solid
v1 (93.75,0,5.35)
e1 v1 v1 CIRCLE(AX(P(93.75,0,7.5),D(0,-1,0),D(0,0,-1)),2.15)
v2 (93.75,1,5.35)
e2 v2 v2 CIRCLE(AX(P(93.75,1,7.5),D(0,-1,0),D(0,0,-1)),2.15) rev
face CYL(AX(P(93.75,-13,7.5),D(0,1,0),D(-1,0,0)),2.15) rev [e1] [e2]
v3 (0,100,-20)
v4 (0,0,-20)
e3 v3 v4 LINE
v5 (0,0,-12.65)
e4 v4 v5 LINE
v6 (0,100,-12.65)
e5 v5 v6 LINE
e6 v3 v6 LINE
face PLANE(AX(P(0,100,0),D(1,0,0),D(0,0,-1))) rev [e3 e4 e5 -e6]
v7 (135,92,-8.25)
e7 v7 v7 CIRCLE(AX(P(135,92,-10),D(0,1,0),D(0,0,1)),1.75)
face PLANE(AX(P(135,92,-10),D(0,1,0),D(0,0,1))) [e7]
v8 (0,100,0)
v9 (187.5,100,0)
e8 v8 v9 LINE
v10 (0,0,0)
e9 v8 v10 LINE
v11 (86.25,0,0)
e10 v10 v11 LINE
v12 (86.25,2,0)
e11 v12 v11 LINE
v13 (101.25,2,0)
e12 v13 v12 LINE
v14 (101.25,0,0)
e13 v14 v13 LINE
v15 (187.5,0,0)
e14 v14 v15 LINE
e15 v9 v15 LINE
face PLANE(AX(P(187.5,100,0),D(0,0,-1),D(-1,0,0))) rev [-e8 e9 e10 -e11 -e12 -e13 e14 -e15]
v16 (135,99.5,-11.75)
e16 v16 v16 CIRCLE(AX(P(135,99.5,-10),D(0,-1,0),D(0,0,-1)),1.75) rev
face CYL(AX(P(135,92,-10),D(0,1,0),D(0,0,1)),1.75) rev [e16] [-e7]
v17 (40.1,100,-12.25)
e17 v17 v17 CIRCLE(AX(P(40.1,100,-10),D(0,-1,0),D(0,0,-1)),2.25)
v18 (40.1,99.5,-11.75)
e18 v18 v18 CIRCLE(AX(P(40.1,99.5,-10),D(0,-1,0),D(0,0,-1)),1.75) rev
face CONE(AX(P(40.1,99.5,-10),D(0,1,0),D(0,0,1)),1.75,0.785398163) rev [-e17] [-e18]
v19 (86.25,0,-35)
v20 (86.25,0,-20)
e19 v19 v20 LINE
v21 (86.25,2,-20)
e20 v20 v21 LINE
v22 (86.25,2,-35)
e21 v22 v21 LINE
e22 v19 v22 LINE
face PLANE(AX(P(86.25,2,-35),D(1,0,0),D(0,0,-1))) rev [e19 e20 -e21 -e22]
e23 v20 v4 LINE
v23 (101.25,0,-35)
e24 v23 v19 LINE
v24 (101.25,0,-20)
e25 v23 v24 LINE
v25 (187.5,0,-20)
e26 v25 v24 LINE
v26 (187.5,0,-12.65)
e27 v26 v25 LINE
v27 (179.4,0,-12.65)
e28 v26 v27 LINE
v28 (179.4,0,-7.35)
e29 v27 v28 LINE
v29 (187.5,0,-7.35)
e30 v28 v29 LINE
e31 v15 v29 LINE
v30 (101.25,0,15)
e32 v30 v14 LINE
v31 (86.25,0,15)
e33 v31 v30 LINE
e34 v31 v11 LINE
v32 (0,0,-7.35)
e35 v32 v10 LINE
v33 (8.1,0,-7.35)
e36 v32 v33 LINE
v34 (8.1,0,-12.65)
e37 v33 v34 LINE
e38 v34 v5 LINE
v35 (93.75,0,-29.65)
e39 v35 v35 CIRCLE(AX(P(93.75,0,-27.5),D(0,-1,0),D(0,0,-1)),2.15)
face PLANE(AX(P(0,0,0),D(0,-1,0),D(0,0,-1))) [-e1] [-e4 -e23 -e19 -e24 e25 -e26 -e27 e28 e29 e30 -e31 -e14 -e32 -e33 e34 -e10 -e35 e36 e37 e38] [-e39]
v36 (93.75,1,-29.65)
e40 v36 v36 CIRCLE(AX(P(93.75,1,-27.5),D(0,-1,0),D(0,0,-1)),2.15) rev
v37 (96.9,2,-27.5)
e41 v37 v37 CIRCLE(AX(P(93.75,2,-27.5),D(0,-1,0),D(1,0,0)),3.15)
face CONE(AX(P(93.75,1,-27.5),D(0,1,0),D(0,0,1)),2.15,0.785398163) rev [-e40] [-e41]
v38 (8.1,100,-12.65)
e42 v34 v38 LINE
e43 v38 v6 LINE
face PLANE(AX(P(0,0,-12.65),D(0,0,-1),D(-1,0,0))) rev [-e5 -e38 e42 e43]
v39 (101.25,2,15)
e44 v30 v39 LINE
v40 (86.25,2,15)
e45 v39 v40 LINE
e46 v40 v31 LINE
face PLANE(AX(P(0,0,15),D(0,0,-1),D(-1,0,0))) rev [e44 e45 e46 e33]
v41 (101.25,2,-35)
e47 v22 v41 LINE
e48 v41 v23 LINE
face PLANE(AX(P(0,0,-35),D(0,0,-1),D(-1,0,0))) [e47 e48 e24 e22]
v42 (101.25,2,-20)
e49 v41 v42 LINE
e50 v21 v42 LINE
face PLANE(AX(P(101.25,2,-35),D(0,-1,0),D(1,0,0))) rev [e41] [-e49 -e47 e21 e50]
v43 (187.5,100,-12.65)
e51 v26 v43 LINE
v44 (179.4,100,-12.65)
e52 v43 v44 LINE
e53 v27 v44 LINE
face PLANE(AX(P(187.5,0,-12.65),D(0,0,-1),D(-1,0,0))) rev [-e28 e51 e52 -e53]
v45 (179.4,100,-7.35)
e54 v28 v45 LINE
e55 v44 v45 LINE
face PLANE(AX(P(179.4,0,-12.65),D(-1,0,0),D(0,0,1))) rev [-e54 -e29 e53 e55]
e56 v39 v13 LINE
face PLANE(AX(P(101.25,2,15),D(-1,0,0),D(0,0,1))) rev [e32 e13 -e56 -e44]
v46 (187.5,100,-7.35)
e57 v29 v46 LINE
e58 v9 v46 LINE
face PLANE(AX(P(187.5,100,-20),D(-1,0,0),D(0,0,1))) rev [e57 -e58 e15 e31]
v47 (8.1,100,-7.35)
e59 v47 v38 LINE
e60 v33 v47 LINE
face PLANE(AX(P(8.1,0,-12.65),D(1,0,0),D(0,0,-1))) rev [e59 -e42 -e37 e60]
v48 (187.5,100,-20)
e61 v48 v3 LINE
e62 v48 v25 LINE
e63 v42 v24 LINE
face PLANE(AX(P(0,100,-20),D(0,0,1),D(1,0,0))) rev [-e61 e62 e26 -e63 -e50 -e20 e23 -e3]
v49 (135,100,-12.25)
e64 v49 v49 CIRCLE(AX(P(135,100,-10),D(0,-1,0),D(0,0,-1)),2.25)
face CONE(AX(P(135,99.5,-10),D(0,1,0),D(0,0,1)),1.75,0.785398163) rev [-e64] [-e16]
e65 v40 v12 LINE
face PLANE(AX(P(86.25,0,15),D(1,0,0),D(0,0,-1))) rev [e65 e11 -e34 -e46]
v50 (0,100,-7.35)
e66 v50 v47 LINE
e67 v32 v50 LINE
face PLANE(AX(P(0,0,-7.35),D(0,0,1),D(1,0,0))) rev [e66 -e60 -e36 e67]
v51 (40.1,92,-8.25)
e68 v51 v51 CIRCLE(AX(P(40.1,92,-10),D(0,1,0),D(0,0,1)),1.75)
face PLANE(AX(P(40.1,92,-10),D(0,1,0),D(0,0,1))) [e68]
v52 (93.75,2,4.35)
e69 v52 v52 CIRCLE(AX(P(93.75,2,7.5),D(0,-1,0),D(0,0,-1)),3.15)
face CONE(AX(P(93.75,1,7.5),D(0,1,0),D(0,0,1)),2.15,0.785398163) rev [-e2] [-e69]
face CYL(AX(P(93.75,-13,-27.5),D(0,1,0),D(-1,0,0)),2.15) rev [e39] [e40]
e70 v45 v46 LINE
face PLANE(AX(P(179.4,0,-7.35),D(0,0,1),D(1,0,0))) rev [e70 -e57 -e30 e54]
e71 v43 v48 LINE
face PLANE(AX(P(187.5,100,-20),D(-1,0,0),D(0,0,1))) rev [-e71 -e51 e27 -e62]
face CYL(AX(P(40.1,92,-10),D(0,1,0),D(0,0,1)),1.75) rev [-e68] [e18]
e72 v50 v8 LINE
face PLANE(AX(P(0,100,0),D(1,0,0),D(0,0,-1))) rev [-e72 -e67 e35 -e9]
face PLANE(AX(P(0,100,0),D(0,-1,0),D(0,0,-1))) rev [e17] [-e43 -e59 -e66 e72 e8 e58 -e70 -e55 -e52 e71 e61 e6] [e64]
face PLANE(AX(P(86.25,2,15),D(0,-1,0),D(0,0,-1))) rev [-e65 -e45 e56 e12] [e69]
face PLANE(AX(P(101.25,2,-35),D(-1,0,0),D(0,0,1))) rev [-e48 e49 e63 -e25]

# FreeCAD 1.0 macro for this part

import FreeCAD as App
import Part
import Sketcher

V = App.Vector
Q = App.Units.Quantity


def edges_at(feature, points):
    """Names of the edges that pass closest to the given points."""
    edges = feature.Shape.Edges
    near = lambda p: min(range(len(edges)), key=lambda i: edges[i].distToShape(Part.Vertex(*p))[0])
    return sorted({f"Edge{near(p) + 1}" for p in points})


def add_polygon(sketch, points):
    """Adds a closed chain of lines whose ends are joined by coincident constraints."""
    first, n = sketch.GeometryCount, len(points)
    for a, b in zip(points, points[1:] + points[:1]):
        sketch.addGeometry(Part.LineSegment(App.Vector(*a, 0), App.Vector(*b, 0)), False)
    for i in range(n):
        sketch.addConstraint(Sketcher.Constraint("Coincident", first + i, 2, first + (i + 1) % n, 1))

doc = App.newDocument("Part")
body = doc.addObject("PartDesign::Body", "Body")

# Sketch on XZ plane
sketch1 = body.newObject("Sketcher::SketchObject", "Sketch")
sketch1.AttachmentSupport = (doc.getObject("XZ_Plane"), [""])
sketch1.MapMode = "FlatFace"
add_polygon(sketch1, [(0, -20), (0, 0), (187.5, 0), (187.5, -20)])  # lines 0-3
sketch1.addConstraint([
    Sketcher.Constraint("Vertical", 0),
    Sketcher.Constraint("Horizontal", 1),
    Sketcher.Constraint("Vertical", 2),
    Sketcher.Constraint("Horizontal", 3),
    Sketcher.Constraint("Coincident", 0, 2, -1, 1),
    Sketcher.Constraint("DistanceY", 0, 1, 0, 2, Q("20 mm")),
    Sketcher.Constraint("DistanceX", 1, 1, 1, 2, Q("187.5 mm")),
])
pad1 = body.newObject("PartDesign::Pad", "Pad")
pad1.Profile = sketch1
pad1.Length = 100
pad1.Reversed = True

# Sketch on XZ plane
sketch2 = body.newObject("Sketcher::SketchObject", "Sketch001")
sketch2.AttachmentSupport = (doc.getObject("XZ_Plane"), [""])
sketch2.MapMode = "FlatFace"
sketch2.AttachmentOffset = App.Placement(V(0, 0, -100), App.Rotation())
add_polygon(sketch2, [(0, -12.65), (0, -7.35), (8.1, -7.35), (8.1, -12.65)])  # lines 0-3
add_polygon(sketch2, [(179.4, -12.65), (179.4, -7.35), (187.5, -7.35), (187.5, -12.65)])  # lines 4-7
sketch2.addConstraint([
    Sketcher.Constraint("Vertical", 0),
    Sketcher.Constraint("Horizontal", 1),
    Sketcher.Constraint("Vertical", 2),
    Sketcher.Constraint("Horizontal", 3),
    Sketcher.Constraint("Vertical", 4),
    Sketcher.Constraint("Horizontal", 5),
    Sketcher.Constraint("Vertical", 6),
    Sketcher.Constraint("Horizontal", 7),
    Sketcher.Constraint("PointOnObject", 0, 2, -2),
    Sketcher.Constraint("Horizontal", 1, 2, 4, 2),
    Sketcher.Constraint("Horizontal", 3, 2, 6, 2),
    Sketcher.Constraint("Equal", 3, 5),
    Sketcher.Constraint("DistanceX", 1, 1, 1, 2, Q("8.1 mm")),
    Sketcher.Constraint("DistanceY", 0, 1, 0, 2, Q("5.3 mm")),
    Sketcher.Constraint("DistanceX", -1, 1, 4, 2, Q("179.4 mm")),
    Sketcher.Constraint("DistanceY", 0, 2, -1, 1, Q("7.35 mm")),
])
pocket1 = body.newObject("PartDesign::Pocket", "Pocket")
pocket1.Profile = sketch2
pocket1.Length = 100
pocket1.Reversed = True

# Sketch on XZ plane
sketch3 = body.newObject("Sketcher::SketchObject", "Sketch002")
sketch3.AttachmentSupport = (doc.getObject("XZ_Plane"), [""])
sketch3.MapMode = "FlatFace"
sketch3.AttachmentOffset = App.Placement(V(0, 0, -100), App.Rotation())
sketch3.addGeometry([
    Part.Circle(V(40.1, -10, 0), V(0, 0, 1), 1.75),
    Part.Circle(V(135, -10, 0), V(0, 0, 1), 1.75),
], False)
sketch3.addConstraint([
    Sketcher.Constraint("Equal", 0, 1),
    Sketcher.Constraint("Horizontal", 0, 3, 1, 3),
    Sketcher.Constraint("Diameter", 0, Q("3.5 mm")),
    Sketcher.Constraint("DistanceY", 0, 3, -1, 1, Q("10 mm")),
    Sketcher.Constraint("DistanceX", -1, 1, 1, 3, Q("135 mm")),
    Sketcher.Constraint("DistanceX", -1, 1, 0, 3, Q("40.1 mm")),
])
pocket2 = body.newObject("PartDesign::Pocket", "Pocket001")
pocket2.Profile = sketch3
pocket2.Length = 8
pocket2.Reversed = True
doc.recompute()

chamfer = body.newObject("PartDesign::Chamfer", "Chamfer")
chamfer.Base = (pocket2, edges_at(pocket2, [(40.1, 100, -11.75)]))
chamfer.Size = 0.5
doc.recompute()

chamfer2 = body.newObject("PartDesign::Chamfer", "Chamfer001")
chamfer2.Base = (chamfer, edges_at(chamfer, [(135, 100, -11.75)]))
chamfer2.Size = 0.5

# Sketch on XY plane
sketch4 = body.newObject("Sketcher::SketchObject", "Sketch003")
sketch4.AttachmentSupport = (doc.getObject("XY_Plane"), [""])
sketch4.MapMode = "FlatFace"
sketch4.AttachmentOffset = App.Placement(V(0, 0, -20), App.Rotation())
add_polygon(sketch4, [(101.25, 2), (101.25, 0), (86.25, 0), (86.25, 2)])  # lines 0-3
sketch4.addConstraint([
    Sketcher.Constraint("Vertical", 0),
    Sketcher.Constraint("Horizontal", 1),
    Sketcher.Constraint("Vertical", 2),
    Sketcher.Constraint("Horizontal", 3),
    Sketcher.Constraint("PointOnObject", 0, 2, -1),
    Sketcher.Constraint("DistanceX", 1, 2, 1, 1, Q("15 mm")),
    Sketcher.Constraint("DistanceY", 0, 2, 0, 1, Q("2 mm")),
    Sketcher.Constraint("DistanceX", -1, 1, 0, 2, Q("101.25 mm")),
])
pad2 = body.newObject("PartDesign::Pad", "Pad001")
pad2.Profile = sketch4
pad2.Length = 15
pad2.Reversed = True

# Sketch on XY plane
sketch5 = body.newObject("Sketcher::SketchObject", "Sketch004")
sketch5.AttachmentSupport = (doc.getObject("XY_Plane"), [""])
sketch5.MapMode = "FlatFace"
add_polygon(sketch5, [(86.25, 2), (86.25, 0), (101.25, 0), (101.25, 2)])  # lines 0-3
sketch5.addConstraint([
    Sketcher.Constraint("Vertical", 0),
    Sketcher.Constraint("Horizontal", 1),
    Sketcher.Constraint("Vertical", 2),
    Sketcher.Constraint("Horizontal", 3),
    Sketcher.Constraint("PointOnObject", 0, 2, -1),
    Sketcher.Constraint("DistanceX", 1, 1, 1, 2, Q("15 mm")),
    Sketcher.Constraint("DistanceY", 0, 2, 0, 1, Q("2 mm")),
    Sketcher.Constraint("DistanceX", -1, 1, 0, 2, Q("86.25 mm")),
])
pad3 = body.newObject("PartDesign::Pad", "Pad002")
pad3.Profile = sketch5
pad3.Length = 15

# Sketch on XZ plane
sketch6 = body.newObject("Sketcher::SketchObject", "Sketch005")
sketch6.AttachmentSupport = (doc.getObject("XZ_Plane"), [""])
sketch6.MapMode = "FlatFace"
sketch6.AttachmentOffset = App.Placement(V(0, 0, -2), App.Rotation())
sketch6.addGeometry([
    Part.Circle(V(93.75, -27.5, 0), V(0, 0, 1), 2.15),
    Part.Circle(V(93.75, 7.5, 0), V(0, 0, 1), 2.15),
], False)
sketch6.addConstraint([
    Sketcher.Constraint("Equal", 0, 1),
    Sketcher.Constraint("Vertical", 0, 3, 1, 3),
    Sketcher.Constraint("Diameter", 0, Q("4.3 mm")),
    Sketcher.Constraint("DistanceY", 0, 3, 1, 3, Q("35 mm")),
    Sketcher.Constraint("DistanceY", 0, 3, -1, 1, Q("27.5 mm")),
    Sketcher.Constraint("DistanceX", -1, 1, 0, 3, Q("93.75 mm")),
])
pocket3 = body.newObject("PartDesign::Pocket", "Pocket002")
pocket3.Profile = sketch6
pocket3.Length = 15
pocket3.Reversed = True
doc.recompute()

chamfer3 = body.newObject("PartDesign::Chamfer", "Chamfer002")
chamfer3.Base = (pocket3, edges_at(pocket3, [(95.9, 2, -27.5), (95.9, 2, 7.5)]))
chamfer3.Size = 1

doc.recompute()
